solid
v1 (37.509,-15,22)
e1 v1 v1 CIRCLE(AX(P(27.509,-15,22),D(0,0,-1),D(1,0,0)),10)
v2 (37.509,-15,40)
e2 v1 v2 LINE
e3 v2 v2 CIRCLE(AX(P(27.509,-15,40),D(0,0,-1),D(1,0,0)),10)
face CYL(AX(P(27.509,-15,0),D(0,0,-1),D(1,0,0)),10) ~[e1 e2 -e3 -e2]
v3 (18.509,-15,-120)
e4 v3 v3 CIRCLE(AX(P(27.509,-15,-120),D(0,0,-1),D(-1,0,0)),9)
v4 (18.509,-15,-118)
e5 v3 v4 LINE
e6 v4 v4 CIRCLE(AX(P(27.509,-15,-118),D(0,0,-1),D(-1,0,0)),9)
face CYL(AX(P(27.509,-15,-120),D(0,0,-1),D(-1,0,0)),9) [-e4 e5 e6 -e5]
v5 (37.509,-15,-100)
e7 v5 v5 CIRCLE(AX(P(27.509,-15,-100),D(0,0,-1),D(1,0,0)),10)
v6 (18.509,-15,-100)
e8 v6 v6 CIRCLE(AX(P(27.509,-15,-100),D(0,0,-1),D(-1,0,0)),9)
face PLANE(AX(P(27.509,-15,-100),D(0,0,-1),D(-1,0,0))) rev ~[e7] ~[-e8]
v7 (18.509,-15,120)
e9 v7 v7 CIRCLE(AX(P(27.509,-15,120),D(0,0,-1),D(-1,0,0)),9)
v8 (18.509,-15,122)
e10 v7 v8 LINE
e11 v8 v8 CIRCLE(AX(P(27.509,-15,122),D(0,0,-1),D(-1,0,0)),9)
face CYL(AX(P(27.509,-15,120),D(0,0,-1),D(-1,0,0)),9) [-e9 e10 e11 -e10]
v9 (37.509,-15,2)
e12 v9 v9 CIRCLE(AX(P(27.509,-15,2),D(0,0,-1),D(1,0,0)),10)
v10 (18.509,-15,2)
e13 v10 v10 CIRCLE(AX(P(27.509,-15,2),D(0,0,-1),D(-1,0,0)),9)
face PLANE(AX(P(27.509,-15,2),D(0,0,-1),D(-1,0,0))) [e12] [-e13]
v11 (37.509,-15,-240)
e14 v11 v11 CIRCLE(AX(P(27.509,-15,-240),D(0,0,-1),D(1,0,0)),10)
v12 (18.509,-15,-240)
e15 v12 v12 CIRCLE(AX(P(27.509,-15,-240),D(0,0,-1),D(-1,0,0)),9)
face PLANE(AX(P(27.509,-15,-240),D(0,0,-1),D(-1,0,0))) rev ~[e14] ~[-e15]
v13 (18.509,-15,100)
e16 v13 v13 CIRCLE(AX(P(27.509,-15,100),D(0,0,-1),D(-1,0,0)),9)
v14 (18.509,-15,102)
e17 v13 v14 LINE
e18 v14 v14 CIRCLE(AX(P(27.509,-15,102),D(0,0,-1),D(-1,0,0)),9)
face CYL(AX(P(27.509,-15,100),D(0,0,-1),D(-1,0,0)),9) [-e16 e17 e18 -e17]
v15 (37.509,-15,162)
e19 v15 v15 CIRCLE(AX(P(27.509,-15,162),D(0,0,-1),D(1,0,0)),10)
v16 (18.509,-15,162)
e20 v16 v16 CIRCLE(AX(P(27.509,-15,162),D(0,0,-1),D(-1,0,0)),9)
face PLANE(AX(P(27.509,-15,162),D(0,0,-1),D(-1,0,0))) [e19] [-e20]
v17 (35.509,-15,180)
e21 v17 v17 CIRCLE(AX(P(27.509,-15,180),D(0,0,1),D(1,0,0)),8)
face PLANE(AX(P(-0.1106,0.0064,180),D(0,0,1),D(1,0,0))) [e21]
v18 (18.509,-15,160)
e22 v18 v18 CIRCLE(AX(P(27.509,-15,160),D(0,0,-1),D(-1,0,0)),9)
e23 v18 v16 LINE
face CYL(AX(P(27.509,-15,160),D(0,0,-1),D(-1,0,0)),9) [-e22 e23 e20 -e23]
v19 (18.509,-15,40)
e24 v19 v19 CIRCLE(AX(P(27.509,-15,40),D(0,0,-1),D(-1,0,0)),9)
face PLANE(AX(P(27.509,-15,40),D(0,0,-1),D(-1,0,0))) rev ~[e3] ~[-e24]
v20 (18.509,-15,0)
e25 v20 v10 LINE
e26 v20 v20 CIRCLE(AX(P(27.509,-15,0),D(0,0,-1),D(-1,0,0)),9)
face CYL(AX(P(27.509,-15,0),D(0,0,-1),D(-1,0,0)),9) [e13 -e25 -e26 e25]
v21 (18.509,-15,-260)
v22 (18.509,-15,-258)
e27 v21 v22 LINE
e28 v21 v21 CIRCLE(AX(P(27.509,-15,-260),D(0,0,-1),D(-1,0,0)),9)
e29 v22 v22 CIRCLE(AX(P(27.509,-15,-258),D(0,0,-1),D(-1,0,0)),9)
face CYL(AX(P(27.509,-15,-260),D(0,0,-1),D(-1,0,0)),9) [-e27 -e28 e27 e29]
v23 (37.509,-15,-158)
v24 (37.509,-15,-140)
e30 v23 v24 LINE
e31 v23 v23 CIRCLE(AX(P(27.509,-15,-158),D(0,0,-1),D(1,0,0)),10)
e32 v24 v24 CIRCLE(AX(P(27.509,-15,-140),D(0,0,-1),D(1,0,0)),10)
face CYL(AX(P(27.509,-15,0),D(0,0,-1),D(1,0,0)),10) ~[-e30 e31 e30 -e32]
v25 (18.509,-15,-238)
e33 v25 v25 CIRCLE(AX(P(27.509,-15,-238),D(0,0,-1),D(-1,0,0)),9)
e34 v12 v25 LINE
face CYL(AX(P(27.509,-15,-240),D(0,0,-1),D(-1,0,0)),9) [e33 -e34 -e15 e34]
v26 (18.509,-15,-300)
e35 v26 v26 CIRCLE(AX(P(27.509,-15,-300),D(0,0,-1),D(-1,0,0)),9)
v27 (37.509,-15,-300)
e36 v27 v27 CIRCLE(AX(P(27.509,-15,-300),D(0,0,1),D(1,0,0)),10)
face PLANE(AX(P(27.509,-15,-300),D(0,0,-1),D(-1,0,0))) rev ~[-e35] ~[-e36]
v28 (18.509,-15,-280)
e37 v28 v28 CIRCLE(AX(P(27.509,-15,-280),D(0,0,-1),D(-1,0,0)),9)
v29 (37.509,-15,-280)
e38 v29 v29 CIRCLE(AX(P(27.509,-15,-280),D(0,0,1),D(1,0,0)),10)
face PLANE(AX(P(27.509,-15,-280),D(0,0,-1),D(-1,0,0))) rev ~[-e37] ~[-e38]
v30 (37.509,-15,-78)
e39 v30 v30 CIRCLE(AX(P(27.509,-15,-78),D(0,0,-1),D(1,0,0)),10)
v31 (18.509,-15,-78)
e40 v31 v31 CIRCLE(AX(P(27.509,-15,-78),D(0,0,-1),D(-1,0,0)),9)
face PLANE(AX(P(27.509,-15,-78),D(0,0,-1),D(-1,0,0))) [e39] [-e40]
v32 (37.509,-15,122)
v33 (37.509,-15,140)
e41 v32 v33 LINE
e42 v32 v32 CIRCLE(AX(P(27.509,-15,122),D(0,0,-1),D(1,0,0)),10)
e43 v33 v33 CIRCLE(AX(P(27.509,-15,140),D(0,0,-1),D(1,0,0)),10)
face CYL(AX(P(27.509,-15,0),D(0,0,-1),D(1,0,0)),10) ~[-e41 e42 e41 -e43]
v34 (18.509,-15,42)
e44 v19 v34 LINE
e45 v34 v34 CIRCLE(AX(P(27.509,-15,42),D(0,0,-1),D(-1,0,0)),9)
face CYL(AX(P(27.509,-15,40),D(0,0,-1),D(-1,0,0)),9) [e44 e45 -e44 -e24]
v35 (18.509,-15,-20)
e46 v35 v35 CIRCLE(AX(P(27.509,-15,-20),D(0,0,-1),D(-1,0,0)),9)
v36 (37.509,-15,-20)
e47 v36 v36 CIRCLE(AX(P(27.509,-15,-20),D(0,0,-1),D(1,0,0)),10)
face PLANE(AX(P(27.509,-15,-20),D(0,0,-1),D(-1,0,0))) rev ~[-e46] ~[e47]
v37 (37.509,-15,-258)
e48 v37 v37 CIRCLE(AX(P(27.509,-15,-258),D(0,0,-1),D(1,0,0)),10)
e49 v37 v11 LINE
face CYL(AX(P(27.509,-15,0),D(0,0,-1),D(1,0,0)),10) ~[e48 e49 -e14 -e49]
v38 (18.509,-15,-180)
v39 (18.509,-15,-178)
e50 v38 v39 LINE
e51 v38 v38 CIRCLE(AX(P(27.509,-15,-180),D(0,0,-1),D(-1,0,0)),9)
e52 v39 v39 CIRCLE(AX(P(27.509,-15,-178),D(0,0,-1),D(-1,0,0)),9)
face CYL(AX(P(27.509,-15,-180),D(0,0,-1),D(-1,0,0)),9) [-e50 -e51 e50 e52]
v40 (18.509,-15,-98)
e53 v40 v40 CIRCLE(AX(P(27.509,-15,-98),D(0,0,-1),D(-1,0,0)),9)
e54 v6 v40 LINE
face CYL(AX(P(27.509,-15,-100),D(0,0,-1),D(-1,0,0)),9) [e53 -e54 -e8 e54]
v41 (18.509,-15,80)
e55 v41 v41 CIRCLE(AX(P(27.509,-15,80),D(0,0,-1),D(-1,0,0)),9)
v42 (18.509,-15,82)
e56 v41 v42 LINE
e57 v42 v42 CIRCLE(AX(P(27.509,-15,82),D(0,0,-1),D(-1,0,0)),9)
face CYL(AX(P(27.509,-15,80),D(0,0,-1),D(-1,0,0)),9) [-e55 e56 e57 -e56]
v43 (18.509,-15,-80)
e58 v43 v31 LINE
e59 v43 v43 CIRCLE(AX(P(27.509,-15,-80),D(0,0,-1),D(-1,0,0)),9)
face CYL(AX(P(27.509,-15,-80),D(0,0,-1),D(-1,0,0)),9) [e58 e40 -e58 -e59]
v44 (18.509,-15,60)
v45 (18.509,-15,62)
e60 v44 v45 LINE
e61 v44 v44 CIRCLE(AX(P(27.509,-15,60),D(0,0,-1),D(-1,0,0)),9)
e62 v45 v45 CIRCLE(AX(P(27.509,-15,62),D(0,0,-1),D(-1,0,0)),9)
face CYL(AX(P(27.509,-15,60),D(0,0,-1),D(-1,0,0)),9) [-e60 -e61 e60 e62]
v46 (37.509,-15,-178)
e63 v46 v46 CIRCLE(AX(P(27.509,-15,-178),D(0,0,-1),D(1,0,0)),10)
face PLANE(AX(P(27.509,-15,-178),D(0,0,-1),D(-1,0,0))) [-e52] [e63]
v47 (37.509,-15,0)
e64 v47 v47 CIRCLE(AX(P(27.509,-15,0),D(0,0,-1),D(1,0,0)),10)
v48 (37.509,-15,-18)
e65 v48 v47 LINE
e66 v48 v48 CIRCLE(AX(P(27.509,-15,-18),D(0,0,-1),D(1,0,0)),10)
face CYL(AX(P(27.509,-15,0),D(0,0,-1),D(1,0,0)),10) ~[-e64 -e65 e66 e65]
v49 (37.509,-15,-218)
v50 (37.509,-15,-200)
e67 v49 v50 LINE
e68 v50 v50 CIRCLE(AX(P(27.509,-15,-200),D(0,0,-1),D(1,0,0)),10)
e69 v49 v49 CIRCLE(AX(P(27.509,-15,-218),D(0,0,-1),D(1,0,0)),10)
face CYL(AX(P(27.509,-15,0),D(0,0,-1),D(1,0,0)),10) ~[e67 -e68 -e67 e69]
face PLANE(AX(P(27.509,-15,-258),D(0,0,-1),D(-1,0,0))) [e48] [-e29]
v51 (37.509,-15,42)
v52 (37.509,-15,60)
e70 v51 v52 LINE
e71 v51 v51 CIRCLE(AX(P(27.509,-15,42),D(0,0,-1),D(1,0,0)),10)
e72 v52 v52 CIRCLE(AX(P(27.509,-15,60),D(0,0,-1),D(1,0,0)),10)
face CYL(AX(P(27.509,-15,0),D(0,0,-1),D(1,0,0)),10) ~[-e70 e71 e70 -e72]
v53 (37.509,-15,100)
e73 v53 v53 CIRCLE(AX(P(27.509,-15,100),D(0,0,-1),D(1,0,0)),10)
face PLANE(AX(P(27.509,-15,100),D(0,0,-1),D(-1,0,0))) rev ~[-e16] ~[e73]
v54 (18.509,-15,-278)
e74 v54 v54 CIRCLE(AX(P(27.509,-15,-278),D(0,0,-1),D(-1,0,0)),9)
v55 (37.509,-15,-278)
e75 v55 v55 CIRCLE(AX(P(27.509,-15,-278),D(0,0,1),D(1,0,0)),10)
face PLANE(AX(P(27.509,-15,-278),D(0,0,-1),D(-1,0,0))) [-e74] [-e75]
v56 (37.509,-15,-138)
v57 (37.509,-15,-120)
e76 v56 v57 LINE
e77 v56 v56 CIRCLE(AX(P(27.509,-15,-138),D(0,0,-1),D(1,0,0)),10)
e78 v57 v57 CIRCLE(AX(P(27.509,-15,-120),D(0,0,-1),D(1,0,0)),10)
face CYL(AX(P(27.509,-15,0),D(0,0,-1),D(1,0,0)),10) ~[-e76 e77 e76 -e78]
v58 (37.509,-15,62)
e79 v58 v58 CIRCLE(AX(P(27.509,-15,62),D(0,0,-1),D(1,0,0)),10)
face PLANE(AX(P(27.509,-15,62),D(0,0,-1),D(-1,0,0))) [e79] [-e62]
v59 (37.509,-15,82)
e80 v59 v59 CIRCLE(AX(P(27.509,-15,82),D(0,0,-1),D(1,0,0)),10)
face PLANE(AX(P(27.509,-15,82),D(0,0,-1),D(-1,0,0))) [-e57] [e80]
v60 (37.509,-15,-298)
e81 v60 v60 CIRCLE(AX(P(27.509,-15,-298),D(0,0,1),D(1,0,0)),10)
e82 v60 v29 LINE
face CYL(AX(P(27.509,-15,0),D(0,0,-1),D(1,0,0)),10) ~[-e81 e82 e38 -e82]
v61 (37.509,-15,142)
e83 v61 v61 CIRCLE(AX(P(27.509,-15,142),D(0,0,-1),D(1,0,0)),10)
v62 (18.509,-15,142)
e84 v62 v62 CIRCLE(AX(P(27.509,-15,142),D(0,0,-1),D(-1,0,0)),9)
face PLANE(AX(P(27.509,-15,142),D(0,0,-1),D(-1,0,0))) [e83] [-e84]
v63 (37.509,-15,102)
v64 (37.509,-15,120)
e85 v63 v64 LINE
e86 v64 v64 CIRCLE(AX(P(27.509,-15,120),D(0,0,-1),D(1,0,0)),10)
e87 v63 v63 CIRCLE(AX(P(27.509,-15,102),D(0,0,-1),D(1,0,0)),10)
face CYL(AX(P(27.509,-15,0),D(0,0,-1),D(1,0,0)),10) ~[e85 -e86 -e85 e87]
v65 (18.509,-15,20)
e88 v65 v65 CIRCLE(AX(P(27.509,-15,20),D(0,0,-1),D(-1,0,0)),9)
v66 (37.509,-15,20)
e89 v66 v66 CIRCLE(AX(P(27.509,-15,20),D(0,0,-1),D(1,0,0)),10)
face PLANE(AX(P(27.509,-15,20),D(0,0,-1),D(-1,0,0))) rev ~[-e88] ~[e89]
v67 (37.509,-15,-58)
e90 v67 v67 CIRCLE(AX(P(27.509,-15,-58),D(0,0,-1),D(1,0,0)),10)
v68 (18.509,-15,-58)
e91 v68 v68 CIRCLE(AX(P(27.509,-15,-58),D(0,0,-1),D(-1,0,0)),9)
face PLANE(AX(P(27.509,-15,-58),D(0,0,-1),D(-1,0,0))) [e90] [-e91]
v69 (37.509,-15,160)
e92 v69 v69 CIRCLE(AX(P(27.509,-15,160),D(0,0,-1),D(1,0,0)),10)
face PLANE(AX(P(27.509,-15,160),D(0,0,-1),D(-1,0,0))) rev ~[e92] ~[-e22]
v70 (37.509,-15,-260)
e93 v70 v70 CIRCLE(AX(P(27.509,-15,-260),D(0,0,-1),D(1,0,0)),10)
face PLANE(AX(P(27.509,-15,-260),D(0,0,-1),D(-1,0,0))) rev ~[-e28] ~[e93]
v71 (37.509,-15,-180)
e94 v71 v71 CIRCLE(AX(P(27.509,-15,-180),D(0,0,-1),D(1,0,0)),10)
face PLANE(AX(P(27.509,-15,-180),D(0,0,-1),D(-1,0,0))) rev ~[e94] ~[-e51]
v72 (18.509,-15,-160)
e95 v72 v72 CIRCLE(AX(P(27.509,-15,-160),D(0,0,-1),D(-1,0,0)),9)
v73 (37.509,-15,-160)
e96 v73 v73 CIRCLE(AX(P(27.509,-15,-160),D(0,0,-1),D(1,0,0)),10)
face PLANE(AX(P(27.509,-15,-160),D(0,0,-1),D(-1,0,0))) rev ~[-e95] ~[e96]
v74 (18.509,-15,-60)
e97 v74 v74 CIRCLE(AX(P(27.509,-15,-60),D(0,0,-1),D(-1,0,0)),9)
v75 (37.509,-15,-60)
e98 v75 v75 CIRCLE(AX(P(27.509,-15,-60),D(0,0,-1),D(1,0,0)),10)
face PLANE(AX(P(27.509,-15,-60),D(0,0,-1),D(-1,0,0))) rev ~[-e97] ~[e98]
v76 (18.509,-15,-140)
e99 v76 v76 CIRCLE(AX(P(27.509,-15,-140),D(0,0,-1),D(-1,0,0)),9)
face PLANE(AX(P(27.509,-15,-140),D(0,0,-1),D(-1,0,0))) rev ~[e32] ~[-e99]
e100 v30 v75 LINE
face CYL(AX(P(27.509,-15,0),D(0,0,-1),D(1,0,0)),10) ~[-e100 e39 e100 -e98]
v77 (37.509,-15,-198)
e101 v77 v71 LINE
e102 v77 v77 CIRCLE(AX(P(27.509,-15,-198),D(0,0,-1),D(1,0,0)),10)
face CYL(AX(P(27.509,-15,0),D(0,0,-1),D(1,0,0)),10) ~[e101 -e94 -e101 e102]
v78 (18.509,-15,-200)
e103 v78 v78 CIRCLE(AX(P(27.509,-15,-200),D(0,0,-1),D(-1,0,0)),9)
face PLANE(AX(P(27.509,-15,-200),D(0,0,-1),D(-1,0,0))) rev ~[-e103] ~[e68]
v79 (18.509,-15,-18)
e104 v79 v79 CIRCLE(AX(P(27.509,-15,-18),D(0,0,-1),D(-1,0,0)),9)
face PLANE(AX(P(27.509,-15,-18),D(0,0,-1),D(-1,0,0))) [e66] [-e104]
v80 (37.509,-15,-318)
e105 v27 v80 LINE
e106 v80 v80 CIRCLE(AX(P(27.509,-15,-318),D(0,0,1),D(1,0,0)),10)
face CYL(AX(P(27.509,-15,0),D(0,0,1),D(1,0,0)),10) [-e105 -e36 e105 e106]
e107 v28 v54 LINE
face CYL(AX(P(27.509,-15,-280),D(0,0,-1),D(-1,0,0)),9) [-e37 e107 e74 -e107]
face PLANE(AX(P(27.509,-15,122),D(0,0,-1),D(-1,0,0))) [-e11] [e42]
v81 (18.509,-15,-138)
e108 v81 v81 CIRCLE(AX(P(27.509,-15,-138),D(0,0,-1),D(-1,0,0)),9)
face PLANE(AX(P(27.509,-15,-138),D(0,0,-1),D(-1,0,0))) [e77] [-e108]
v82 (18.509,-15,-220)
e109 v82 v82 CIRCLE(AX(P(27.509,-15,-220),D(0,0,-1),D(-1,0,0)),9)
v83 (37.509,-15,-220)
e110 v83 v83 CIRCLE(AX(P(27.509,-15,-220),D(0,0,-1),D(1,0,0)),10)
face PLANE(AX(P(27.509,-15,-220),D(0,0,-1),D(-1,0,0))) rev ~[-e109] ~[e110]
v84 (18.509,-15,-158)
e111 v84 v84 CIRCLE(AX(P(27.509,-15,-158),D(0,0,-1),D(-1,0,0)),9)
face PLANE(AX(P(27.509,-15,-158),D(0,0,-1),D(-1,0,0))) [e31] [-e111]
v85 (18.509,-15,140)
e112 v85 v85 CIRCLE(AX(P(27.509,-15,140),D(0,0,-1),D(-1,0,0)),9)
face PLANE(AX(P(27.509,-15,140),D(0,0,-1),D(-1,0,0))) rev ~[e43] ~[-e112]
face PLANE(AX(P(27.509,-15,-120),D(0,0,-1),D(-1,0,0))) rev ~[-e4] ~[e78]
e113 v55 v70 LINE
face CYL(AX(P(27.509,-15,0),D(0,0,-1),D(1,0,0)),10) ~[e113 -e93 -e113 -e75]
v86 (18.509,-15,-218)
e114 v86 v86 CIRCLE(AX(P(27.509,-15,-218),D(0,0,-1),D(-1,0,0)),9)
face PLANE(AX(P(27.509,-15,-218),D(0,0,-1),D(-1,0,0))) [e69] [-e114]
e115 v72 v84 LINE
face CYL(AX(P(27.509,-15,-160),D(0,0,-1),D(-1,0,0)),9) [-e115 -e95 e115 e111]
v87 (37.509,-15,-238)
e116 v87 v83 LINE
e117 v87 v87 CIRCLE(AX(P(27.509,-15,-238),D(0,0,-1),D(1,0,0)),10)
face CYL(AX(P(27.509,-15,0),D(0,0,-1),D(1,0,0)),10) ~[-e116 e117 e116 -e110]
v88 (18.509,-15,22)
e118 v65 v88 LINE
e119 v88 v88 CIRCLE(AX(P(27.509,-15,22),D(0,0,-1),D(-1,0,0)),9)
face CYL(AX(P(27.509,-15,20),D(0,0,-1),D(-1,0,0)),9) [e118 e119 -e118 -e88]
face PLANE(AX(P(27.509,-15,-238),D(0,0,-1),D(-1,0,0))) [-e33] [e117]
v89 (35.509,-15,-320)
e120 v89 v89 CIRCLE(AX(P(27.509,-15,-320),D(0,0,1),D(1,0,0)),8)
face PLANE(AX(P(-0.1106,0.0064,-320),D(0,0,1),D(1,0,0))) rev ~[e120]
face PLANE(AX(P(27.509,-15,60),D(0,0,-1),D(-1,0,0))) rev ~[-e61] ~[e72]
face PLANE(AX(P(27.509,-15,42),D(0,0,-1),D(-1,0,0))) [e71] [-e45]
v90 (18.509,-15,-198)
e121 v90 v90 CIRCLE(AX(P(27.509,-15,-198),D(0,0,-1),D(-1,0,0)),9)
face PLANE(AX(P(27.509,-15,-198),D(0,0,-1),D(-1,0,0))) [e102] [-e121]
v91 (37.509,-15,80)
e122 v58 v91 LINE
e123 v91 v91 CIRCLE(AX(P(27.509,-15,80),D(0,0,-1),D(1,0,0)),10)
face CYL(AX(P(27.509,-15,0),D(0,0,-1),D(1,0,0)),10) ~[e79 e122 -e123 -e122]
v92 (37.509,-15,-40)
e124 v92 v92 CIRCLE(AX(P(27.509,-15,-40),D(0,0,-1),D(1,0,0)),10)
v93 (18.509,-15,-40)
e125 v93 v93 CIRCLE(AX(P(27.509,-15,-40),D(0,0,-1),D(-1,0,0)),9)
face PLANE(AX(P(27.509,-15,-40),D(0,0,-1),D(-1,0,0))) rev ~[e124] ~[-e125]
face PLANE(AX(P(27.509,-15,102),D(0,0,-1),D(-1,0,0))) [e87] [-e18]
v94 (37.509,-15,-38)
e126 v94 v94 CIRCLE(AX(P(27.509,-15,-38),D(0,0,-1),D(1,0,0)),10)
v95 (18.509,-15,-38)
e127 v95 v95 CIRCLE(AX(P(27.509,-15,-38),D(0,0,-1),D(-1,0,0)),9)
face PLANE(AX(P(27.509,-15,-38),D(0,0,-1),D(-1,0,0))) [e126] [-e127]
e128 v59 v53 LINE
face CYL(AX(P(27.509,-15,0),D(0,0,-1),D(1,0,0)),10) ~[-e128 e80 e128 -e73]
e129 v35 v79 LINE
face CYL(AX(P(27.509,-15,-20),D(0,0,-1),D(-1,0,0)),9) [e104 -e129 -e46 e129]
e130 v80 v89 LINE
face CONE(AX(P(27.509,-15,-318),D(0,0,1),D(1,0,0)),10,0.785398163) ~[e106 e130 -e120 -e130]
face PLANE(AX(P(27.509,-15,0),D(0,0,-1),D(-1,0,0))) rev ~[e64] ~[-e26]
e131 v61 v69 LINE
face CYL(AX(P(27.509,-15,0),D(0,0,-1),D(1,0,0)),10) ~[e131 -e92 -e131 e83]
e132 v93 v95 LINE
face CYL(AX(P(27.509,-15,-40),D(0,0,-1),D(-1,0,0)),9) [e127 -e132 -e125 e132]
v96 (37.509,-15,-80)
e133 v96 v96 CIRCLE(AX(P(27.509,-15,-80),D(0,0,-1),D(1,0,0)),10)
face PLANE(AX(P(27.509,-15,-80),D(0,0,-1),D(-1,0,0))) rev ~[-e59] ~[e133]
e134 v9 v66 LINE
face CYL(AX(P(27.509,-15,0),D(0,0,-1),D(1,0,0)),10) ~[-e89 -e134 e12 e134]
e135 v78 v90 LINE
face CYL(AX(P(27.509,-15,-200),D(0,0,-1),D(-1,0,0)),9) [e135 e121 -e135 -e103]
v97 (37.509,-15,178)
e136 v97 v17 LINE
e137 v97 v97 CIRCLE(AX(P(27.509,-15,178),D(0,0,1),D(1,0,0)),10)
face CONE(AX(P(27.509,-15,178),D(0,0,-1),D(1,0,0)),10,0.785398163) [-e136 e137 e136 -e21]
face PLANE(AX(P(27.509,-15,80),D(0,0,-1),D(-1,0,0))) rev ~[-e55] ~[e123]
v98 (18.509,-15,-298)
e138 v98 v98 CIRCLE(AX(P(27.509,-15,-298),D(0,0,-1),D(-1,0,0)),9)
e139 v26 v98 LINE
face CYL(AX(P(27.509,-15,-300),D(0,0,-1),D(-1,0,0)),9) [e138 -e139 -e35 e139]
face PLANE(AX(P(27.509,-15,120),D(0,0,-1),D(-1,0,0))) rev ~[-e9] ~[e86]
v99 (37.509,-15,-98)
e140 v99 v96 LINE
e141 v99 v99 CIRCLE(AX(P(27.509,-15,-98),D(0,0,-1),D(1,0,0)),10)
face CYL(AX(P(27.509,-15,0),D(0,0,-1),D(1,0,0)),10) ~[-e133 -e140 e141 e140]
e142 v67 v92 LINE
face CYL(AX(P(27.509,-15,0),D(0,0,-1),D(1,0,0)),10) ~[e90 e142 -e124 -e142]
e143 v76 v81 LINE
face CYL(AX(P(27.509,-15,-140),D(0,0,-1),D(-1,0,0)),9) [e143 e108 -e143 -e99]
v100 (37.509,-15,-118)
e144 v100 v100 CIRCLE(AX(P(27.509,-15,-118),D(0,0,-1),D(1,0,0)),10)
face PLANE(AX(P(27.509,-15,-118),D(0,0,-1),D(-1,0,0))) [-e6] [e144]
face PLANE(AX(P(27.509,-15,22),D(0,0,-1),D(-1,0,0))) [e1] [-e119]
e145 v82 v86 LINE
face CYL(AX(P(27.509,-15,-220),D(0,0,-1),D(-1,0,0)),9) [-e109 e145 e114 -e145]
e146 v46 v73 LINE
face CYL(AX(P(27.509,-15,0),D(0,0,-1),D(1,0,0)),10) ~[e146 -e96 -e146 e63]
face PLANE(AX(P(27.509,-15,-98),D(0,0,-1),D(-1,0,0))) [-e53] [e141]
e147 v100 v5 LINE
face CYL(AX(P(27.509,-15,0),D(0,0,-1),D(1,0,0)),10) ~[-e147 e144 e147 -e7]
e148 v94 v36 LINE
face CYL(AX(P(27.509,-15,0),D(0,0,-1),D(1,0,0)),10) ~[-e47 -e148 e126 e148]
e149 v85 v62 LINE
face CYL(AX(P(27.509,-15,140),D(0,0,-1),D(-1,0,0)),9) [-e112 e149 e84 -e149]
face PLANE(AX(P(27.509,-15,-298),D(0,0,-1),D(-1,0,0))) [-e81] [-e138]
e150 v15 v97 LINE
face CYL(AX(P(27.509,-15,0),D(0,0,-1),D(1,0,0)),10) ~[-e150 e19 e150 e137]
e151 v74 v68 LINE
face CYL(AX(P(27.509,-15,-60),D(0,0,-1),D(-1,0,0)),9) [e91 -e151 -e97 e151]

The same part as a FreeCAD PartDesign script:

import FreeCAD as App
import Part
import Sketcher

V = App.Vector
Q = App.Units.Quantity


def edges_at(feature, points):
    """Names of the edges that pass closest to the given points."""
    edges = feature.Shape.Edges
    near = lambda p: min(range(len(edges)), key=lambda i: edges[i].distToShape(Part.Vertex(*p))[0])
    return sorted({f"Edge{near(p) + 1}" for p in points})

doc = App.newDocument("Part")
params = doc.addObject("Spreadsheet::Sheet", "Params")
for row, (alias, value) in enumerate([
    ("sketch1_diameter", "20 mm"),
    ("pad1_length", "180 mm"),
    ("pad1_length2", "320 mm"),
    ("chamfer_size", "2 mm"),
    ("sketch2_diameter", "20 mm"),
    ("sketch2_diameter2", "18 mm"),
    ("pocket1_length", "2 mm"),
    ("linearpattern_pitch", "20 mm"),
], start=1):
    params.set(f"A{row}", alias)
    params.set(f"B{row}", "=" + value)
    params.setAlias(f"B{row}", alias)

body = doc.addObject("PartDesign::Body", "Body")

# Sketch on XY plane
sketch1 = body.newObject("Sketcher::SketchObject", "Sketch")
sketch1.AttachmentSupport = (doc.getObject("XY_Plane"), [""])
sketch1.MapMode = "FlatFace"
sketch1.addGeometry(Part.Circle(V(27.509, -15, 0), V(0, 0, 1), 10), False)
sketch1.addConstraint([
    Sketcher.Constraint("Diameter", 0, Q("20 mm")),
    Sketcher.Constraint("DistanceY", 0, 3, -1, 1, Q("15 mm")),
    Sketcher.Constraint("DistanceX", -1, 1, 0, 3, Q("27.509 mm")),
])
sketch1.setExpression("Constraints[0]", "Params.sketch1_diameter")
pad1 = body.newObject("PartDesign::Pad", "Pad")
pad1.Profile = sketch1
pad1.Type = "TwoLengths"
pad1.setExpression("Length", "Params.pad1_length")
pad1.setExpression("Length2", "Params.pad1_length2")
doc.recompute()

chamfer = body.newObject("PartDesign::Chamfer", "Chamfer")
chamfer.Base = (pad1, edges_at(pad1, [(17.509, -15, 180), (17.509, -15, -320)]))
chamfer.setExpression("Size", "Params.chamfer_size")

# Sketch on XY plane
sketch2 = body.newObject("Sketcher::SketchObject", "Sketch001")
sketch2.AttachmentSupport = (doc.getObject("XY_Plane"), [""])
sketch2.MapMode = "FlatFace"
sketch2.AttachmentOffset = App.Placement(V(0, 0, -300), App.Rotation())
sketch2.addGeometry([
    Part.Circle(V(27.509, -15, 0), V(0, 0, 1), 10),
    Part.Circle(V(27.509, -15, 0), V(0, 0, 1), 9),
], False)
sketch2.addConstraint([
    Sketcher.Constraint("Coincident", 1, 3, 0, 3),
    Sketcher.Constraint("Diameter", 0, Q("20 mm")),
    Sketcher.Constraint("Diameter", 1, Q("18 mm")),
    Sketcher.Constraint("DistanceY", 0, 3, -1, 1, Q("15 mm")),
    Sketcher.Constraint("DistanceX", -1, 1, 0, 3, Q("27.509 mm")),
])
sketch2.setExpression("Constraints[1]", "Params.sketch2_diameter")
sketch2.setExpression("Constraints[2]", "Params.sketch2_diameter2")
pocket1 = body.newObject("PartDesign::Pocket", "Pocket")
pocket1.Profile = sketch2
pocket1.setExpression("Length", "Params.pocket1_length")
pocket1.Reversed = True
doc.recompute()

linearpattern = body.newObject("PartDesign::LinearPattern", "LinearPattern")
linearpattern.Originals = [pocket1]
linearpattern.Direction = (doc.getObject("Z_Axis"), [""])
linearpattern.Mode = "offset"
linearpattern.setExpression("Offset", "Params.linearpattern_pitch")
linearpattern.Occurrences = 24
body.Tip = linearpattern

doc.recompute()
